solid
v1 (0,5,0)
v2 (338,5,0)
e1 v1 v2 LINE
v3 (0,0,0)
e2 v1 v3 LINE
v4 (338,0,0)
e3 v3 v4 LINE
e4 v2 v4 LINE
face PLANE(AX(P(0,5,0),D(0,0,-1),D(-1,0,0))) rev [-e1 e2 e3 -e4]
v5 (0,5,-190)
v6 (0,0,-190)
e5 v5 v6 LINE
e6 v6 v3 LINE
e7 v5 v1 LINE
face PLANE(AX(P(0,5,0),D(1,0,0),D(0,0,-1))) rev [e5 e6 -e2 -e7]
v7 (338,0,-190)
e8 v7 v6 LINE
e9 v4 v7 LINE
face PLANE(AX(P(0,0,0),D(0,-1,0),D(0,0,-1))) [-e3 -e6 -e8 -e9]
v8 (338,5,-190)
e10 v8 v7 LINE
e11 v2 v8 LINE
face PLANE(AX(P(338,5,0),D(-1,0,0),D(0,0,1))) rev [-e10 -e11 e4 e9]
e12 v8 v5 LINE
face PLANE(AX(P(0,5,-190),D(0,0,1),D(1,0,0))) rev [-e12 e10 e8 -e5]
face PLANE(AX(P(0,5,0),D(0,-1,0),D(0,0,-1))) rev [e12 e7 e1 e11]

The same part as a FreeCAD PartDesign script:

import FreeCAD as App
import Part
import Sketcher

V = App.Vector

doc = App.newDocument("Part")
body = doc.addObject("PartDesign::Body", "Body")

# Sketch on XZ plane
sketch1 = body.newObject("Sketcher::SketchObject", "Sketch")
sketch1.AttachmentSupport = (doc.getObject("XZ_Plane"), [""])
sketch1.MapMode = "FlatFace"
sketch1.addGeometry([
    Part.LineSegment(V(0, -190, 0), V(0, 0, 0)),
    Part.LineSegment(V(0, 0, 0), V(338, 0, 0)),
    Part.LineSegment(V(338, 0, 0), V(338, -190, 0)),
    Part.LineSegment(V(338, -190, 0), V(0, -190, 0)),
], False)
sketch1.addConstraint([
    Sketcher.Constraint("Coincident", 0, 2, 1, 1),
    Sketcher.Constraint("Coincident", 1, 2, 2, 1),
    Sketcher.Constraint("Coincident", 2, 2, 3, 1),
    Sketcher.Constraint("Coincident", 3, 2, 0, 1),
    Sketcher.Constraint("Vertical", 0),
    Sketcher.Constraint("Horizontal", 1),
    Sketcher.Constraint("Vertical", 2),
    Sketcher.Constraint("Horizontal", 3),
    Sketcher.Constraint("Coincident", 0, 2, -1, 1),
    Sketcher.Constraint("DistanceX", 1, 1, 1, 2, 338.0),
    Sketcher.Constraint("DistanceY", 0, 1, 0, 2, 190.0),
])
pad1 = body.newObject("PartDesign::Pad", "Pad")
pad1.Profile = sketch1
pad1.Length = 5
pad1.Reversed = True

doc.recompute()
